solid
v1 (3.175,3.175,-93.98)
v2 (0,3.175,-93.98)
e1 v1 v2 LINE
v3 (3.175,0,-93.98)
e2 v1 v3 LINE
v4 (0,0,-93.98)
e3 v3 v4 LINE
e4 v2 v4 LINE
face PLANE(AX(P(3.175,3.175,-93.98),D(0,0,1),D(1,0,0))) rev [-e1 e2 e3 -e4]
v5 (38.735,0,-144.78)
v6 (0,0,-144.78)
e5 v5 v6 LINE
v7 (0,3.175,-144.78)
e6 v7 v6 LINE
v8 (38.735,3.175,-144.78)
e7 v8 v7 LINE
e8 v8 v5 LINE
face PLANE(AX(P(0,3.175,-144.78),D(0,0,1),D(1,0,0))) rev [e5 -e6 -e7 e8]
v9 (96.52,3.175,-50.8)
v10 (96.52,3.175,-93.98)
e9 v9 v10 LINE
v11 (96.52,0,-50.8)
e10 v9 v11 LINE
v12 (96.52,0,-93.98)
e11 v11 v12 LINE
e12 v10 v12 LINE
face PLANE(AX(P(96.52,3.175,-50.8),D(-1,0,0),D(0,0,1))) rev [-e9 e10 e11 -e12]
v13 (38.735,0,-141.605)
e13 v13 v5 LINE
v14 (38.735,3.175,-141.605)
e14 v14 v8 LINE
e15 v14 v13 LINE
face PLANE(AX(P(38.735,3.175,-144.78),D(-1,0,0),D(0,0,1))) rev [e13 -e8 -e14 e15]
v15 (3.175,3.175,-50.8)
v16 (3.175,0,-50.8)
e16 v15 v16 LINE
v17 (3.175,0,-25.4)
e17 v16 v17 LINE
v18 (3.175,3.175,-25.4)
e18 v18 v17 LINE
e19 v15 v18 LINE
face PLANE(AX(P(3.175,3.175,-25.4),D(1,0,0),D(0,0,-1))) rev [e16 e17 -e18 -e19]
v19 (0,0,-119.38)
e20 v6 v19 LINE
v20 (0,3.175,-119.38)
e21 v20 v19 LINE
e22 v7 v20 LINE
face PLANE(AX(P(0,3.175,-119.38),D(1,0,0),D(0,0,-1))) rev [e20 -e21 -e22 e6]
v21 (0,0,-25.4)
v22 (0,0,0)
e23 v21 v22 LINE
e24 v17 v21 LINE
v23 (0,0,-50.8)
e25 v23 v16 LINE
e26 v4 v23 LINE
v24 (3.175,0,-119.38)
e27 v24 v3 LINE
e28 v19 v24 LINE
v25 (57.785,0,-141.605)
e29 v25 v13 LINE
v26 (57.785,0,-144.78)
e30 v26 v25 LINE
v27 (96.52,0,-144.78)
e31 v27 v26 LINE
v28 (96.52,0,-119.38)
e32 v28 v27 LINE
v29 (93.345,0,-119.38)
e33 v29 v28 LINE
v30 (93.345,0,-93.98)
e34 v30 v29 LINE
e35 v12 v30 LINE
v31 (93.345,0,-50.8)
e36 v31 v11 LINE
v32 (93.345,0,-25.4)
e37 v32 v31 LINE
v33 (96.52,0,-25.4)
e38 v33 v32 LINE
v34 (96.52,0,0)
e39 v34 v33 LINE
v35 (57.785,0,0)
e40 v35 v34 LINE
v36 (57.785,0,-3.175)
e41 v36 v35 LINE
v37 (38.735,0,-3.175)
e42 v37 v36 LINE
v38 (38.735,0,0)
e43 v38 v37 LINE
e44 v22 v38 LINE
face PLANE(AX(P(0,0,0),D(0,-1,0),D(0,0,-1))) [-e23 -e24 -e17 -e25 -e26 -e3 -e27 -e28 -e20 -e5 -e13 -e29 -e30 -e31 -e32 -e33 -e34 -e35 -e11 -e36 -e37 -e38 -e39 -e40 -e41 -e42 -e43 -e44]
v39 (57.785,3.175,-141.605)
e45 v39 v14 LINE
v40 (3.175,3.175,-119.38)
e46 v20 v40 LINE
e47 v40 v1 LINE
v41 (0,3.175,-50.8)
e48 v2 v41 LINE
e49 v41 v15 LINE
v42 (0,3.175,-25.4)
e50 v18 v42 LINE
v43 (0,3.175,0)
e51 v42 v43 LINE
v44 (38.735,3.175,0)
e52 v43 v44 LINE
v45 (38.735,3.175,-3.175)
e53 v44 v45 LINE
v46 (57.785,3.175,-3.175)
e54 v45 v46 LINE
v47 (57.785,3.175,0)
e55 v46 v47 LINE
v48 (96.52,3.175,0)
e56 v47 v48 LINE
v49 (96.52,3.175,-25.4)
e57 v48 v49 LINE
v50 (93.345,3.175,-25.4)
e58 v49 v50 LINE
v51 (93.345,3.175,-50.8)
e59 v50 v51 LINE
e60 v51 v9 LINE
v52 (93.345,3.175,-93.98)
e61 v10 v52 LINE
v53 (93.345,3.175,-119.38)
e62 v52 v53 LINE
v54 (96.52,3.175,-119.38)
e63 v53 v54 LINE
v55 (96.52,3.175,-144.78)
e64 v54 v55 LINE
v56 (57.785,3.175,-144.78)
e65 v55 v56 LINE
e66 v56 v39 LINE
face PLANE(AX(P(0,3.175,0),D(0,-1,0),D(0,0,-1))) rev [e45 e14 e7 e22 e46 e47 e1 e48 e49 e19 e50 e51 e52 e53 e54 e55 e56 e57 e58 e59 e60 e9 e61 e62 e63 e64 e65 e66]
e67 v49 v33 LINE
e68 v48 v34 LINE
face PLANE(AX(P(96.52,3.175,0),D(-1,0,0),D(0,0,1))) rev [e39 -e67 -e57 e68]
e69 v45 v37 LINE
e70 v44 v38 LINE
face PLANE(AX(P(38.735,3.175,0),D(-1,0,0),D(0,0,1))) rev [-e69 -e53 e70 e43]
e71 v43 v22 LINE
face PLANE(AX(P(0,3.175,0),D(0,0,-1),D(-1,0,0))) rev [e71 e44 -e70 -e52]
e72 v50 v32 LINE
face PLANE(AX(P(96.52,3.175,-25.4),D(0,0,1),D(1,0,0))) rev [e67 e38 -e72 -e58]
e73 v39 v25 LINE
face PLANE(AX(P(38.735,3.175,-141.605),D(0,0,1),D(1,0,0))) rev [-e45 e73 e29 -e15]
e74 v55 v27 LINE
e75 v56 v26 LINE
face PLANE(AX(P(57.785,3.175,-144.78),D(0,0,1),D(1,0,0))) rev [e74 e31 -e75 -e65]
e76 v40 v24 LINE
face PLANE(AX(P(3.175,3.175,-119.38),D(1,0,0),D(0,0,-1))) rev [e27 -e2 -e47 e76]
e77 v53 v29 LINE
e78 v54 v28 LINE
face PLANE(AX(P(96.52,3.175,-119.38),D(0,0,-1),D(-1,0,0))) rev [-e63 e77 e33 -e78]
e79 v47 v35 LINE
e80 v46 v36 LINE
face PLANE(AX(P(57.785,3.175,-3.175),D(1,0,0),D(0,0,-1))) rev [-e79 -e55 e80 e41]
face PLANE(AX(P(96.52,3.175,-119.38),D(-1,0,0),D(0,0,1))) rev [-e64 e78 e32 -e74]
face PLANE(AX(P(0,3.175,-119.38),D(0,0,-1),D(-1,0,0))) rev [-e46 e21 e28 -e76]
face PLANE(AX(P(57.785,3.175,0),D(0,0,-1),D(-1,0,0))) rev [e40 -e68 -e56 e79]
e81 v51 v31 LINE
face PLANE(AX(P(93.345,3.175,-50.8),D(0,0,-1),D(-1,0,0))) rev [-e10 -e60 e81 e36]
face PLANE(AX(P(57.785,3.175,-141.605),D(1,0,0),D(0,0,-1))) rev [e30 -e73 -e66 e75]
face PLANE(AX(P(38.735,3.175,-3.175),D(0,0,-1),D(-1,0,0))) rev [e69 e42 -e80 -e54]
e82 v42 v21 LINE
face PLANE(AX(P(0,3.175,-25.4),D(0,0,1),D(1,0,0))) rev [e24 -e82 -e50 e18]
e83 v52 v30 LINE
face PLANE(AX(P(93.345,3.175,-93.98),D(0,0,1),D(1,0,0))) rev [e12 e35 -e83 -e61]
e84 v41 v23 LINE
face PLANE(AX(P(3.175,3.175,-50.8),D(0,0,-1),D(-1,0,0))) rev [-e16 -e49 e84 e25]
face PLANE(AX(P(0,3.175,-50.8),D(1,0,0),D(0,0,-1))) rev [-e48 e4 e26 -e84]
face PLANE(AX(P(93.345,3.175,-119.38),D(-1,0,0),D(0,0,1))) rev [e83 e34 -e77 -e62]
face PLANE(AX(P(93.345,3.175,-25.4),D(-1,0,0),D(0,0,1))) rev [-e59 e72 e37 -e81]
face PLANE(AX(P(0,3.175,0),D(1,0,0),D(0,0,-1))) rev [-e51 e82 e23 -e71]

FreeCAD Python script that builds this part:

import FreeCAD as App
import Part
import Sketcher
from FreeCAD import Vector
Q = App.Units.Quantity


def add_polygon(sketch, points):
    """Adds a closed chain of lines whose ends are joined by coincident constraints."""
    first, n = sketch.GeometryCount, len(points)
    for a, b in zip(points, points[1:] + points[:1]):
        sketch.addGeometry(Part.LineSegment(App.Vector(*a, 0), App.Vector(*b, 0)), False)
    for i in range(n):
        sketch.addConstraint(Sketcher.Constraint("Coincident", first + i, 2, first + (i + 1) % n, 1))

doc = App.newDocument("Part")
body = doc.addObject("PartDesign::Body", "Body")

sketch1 = doc.addObject("Sketcher::SketchObject", "Sketch")
body.addObject(sketch1)
sketch1.AttachmentSupport = (doc.XZ_Plane, [""])
sketch1.MapMode = "FlatFace"
add_polygon(sketch1, [(38.7, -141.6), (38.7, -144.8), (0, -144.8), (0, -119.4), (3.2, -119.4), (3.2, -94), (0, -94), (0, -50.8), (3.2, -50.8), (3.2, -25.4), (0, -25.4), (0, 0), (38.7, 0), (38.7, -3.2), (57.8, -3.2), (57.8, 0), (96.5, 0), (96.5, -25.4), (93.3, -25.4), (93.3, -50.8), (96.5, -50.8), (96.5, -94), (93.3, -94), (93.3, -119.4), (96.5, -119.4), (96.5, -144.8), (57.8, -144.8), (57.8, -141.6)])
sketch1.addConstraint(Sketcher.Constraint("Vertical", 0))
sketch1.addConstraint(Sketcher.Constraint("Horizontal", 1))
sketch1.addConstraint(Sketcher.Constraint("Vertical", 2))
sketch1.addConstraint(Sketcher.Constraint("Horizontal", 3))
sketch1.addConstraint(Sketcher.Constraint("Vertical", 4))
sketch1.addConstraint(Sketcher.Constraint("Horizontal", 5))
sketch1.addConstraint(Sketcher.Constraint("Vertical", 6))
sketch1.addConstraint(Sketcher.Constraint("Horizontal", 7))
sketch1.addConstraint(Sketcher.Constraint("Vertical", 8))
sketch1.addConstraint(Sketcher.Constraint("Horizontal", 9))
sketch1.addConstraint(Sketcher.Constraint("Vertical", 10))
sketch1.addConstraint(Sketcher.Constraint("Horizontal", 11))
sketch1.addConstraint(Sketcher.Constraint("Vertical", 12))
sketch1.addConstraint(Sketcher.Constraint("Horizontal", 13))
sketch1.addConstraint(Sketcher.Constraint("Vertical", 14))
sketch1.addConstraint(Sketcher.Constraint("Horizontal", 15))
sketch1.addConstraint(Sketcher.Constraint("Vertical", 16))
sketch1.addConstraint(Sketcher.Constraint("Horizontal", 17))
sketch1.addConstraint(Sketcher.Constraint("Vertical", 18))
sketch1.addConstraint(Sketcher.Constraint("Horizontal", 19))
sketch1.addConstraint(Sketcher.Constraint("Vertical", 20))
sketch1.addConstraint(Sketcher.Constraint("Horizontal", 21))
sketch1.addConstraint(Sketcher.Constraint("Vertical", 22))
sketch1.addConstraint(Sketcher.Constraint("Horizontal", 23))
sketch1.addConstraint(Sketcher.Constraint("Vertical", 24))
sketch1.addConstraint(Sketcher.Constraint("Horizontal", 25))
sketch1.addConstraint(Sketcher.Constraint("Vertical", 26))
sketch1.addConstraint(Sketcher.Constraint("Horizontal", 27))
sketch1.addConstraint(Sketcher.Constraint("Coincident", 10, 2, -1, 1))
sketch1.addConstraint(Sketcher.Constraint("PointOnObject", 1, 2, -2))
sketch1.addConstraint(Sketcher.Constraint("PointOnObject", 5, 2, -2))
sketch1.addConstraint(Sketcher.Constraint("PointOnObject", 14, 2, -1))
sketch1.addConstraint(Sketcher.Constraint("Horizontal", 9, 2, 16, 2))
sketch1.addConstraint(Sketcher.Constraint("Horizontal", 7, 2, 18, 2))
sketch1.addConstraint(Sketcher.Constraint("Horizontal", 5, 2, 20, 2))
sketch1.addConstraint(Sketcher.Constraint("Horizontal", 3, 2, 22, 2))
sketch1.addConstraint(Sketcher.Constraint("Horizontal", 1, 2, 24, 2))
sketch1.addConstraint(Sketcher.Constraint("Vertical", 4, 2, 7, 2))
sketch1.addConstraint(Sketcher.Constraint("Vertical", 0, 2, 11, 2))
sketch1.addConstraint(Sketcher.Constraint("Vertical", 16, 2, 19, 2))
sketch1.addConstraint(Sketcher.Constraint("Vertical", 18, 2, 21, 2))
sketch1.addConstraint(Sketcher.Constraint("Vertical", 20, 2, 23, 2))
sketch1.addConstraint(Sketcher.Constraint("Vertical", 14, 2, 25, 2))
sketch1.addConstraint(Sketcher.Constraint("Equal", 11, 15))
sketch1.addConstraint(Sketcher.Constraint("Equal", 9, 17))
sketch1.addConstraint(Sketcher.Constraint("Equal", 23, 0))
sketch1.addConstraint(Sketcher.Constraint("Equal", 2, 4))
sketch1.addConstraint(Sketcher.Constraint("Equal", 4, 8))
sketch1.addConstraint(Sketcher.Constraint("Equal", 8, 10))
sketch1.addConstraint(Sketcher.Constraint("Equal", 0, 12))
sketch1.addConstraint(Sketcher.Constraint("DistanceY", 2, 1, 2, 2, Q("1 in")))
sketch1.addConstraint(Sketcher.Constraint("DistanceY", 6, 1, 6, 2, Q("1.7 in")))
sketch1.addConstraint(Sketcher.Constraint("DistanceX", 13, 1, 13, 2, Q("0.75 in")))
sketch1.addConstraint(Sketcher.Constraint("DistanceX", -1, 1, 15, 2, Q("3.8 in")))
sketch1.addConstraint(Sketcher.Constraint("DistanceX", 3, 2, 0, 2, Q("1.4 in")))
pad1 = doc.addObject("PartDesign::Pad", "Pad")
body.addObject(pad1)
pad1.Profile = sketch1
pad1.Length = Q("0.125 in")
pad1.Reversed = True

doc.recompute()
